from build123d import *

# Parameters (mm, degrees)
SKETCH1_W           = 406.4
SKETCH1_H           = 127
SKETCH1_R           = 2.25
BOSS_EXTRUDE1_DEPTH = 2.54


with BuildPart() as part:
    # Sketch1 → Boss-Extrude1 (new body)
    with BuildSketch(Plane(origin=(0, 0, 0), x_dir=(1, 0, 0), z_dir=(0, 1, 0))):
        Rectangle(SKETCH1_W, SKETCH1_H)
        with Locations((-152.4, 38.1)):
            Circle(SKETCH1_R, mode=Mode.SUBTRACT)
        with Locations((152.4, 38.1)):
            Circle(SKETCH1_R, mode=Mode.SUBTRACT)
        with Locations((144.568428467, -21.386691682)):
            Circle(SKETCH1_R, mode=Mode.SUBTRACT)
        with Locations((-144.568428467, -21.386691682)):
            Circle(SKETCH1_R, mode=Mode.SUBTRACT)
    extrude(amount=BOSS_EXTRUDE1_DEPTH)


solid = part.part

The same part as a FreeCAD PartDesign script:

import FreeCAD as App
import Part
import Sketcher

V = App.Vector
Q = App.Units.Quantity


def add_polygon(sketch, points):
    """Adds a closed chain of lines whose ends are joined by coincident constraints."""
    first, n = sketch.GeometryCount, len(points)
    for a, b in zip(points, points[1:] + points[:1]):
        sketch.addGeometry(Part.LineSegment(App.Vector(*a, 0), App.Vector(*b, 0)), False)
    for i in range(n):
        sketch.addConstraint(Sketcher.Constraint("Coincident", first + i, 2, first + (i + 1) % n, 1))

doc = App.newDocument("Part")
body = doc.addObject("PartDesign::Body", "Body")

# Sketch on XZ plane
sketch1 = body.newObject("Sketcher::SketchObject", "Sketch")
sketch1.AttachmentSupport = (doc.getObject("XZ_Plane"), [""])
sketch1.MapMode = "FlatFace"
add_polygon(sketch1, [(-203.2, -63.5), (-203.2, 63.5), (203.2, 63.5), (203.2, -63.5)])  # lines 0-3
sketch1.addGeometry(Part.Circle(V(-144.568428, 21.386692, 0), V(0, 0, 1), 2.25), False)  # 4
sketch1.addGeometry(Part.Circle(V(144.568428, 21.386692, 0), V(0, 0, 1), 2.25), False)  # 5
sketch1.addGeometry(Part.Circle(V(-152.4, -38.1, 0), V(0, 0, 1), 2.25), False)  # 6
sketch1.addGeometry(Part.Circle(V(152.4, -38.1, 0), V(0, 0, 1), 2.25), False)  # 7
sketch1.addConstraint(Sketcher.Constraint("Vertical", 0))
sketch1.addConstraint(Sketcher.Constraint("Horizontal", 1))
sketch1.addConstraint(Sketcher.Constraint("Vertical", 2))
sketch1.addConstraint(Sketcher.Constraint("Horizontal", 3))
sketch1.addConstraint(Sketcher.Constraint("Equal", 4, 5))
sketch1.addConstraint(Sketcher.Constraint("Equal", 5, 6))
sketch1.addConstraint(Sketcher.Constraint("Equal", 6, 7))
sketch1.addConstraint(Sketcher.Constraint("Symmetric", 0, 2, 2, 2, -1, 1))
sketch1.addConstraint(Sketcher.Constraint("Symmetric", 4, 3, 5, 3, -2))
sketch1.addConstraint(Sketcher.Constraint("Symmetric", 6, 3, 7, 3, -2))
sketch1.addConstraint(Sketcher.Constraint("DistanceX", 1, 1, 1, 2, Q("16 in")))
sketch1.addConstraint(Sketcher.Constraint("DistanceY", 0, 1, 0, 2, Q("5 in")))
sketch1.addConstraint(Sketcher.Constraint("DistanceX", 6, 3, -1, 1, Q("6 in")))
sketch1.addConstraint(Sketcher.Constraint("DistanceY", 6, 3, 0, 2, Q("4 in")))
sketch1.addConstraint(Sketcher.Constraint("Diameter", 4, 4.5))
sketch1.addConstraint(Sketcher.Constraint("DistanceX", 4, 3, -1, 1, 144.568428))
sketch1.addConstraint(Sketcher.Constraint("DistanceY", -1, 1, 4, 3, 21.386692))
pad1 = body.newObject("PartDesign::Pad", "Pad")
pad1.Profile = sketch1
pad1.Length = Q("0.1 in")
pad1.Reversed = True

doc.recompute()
